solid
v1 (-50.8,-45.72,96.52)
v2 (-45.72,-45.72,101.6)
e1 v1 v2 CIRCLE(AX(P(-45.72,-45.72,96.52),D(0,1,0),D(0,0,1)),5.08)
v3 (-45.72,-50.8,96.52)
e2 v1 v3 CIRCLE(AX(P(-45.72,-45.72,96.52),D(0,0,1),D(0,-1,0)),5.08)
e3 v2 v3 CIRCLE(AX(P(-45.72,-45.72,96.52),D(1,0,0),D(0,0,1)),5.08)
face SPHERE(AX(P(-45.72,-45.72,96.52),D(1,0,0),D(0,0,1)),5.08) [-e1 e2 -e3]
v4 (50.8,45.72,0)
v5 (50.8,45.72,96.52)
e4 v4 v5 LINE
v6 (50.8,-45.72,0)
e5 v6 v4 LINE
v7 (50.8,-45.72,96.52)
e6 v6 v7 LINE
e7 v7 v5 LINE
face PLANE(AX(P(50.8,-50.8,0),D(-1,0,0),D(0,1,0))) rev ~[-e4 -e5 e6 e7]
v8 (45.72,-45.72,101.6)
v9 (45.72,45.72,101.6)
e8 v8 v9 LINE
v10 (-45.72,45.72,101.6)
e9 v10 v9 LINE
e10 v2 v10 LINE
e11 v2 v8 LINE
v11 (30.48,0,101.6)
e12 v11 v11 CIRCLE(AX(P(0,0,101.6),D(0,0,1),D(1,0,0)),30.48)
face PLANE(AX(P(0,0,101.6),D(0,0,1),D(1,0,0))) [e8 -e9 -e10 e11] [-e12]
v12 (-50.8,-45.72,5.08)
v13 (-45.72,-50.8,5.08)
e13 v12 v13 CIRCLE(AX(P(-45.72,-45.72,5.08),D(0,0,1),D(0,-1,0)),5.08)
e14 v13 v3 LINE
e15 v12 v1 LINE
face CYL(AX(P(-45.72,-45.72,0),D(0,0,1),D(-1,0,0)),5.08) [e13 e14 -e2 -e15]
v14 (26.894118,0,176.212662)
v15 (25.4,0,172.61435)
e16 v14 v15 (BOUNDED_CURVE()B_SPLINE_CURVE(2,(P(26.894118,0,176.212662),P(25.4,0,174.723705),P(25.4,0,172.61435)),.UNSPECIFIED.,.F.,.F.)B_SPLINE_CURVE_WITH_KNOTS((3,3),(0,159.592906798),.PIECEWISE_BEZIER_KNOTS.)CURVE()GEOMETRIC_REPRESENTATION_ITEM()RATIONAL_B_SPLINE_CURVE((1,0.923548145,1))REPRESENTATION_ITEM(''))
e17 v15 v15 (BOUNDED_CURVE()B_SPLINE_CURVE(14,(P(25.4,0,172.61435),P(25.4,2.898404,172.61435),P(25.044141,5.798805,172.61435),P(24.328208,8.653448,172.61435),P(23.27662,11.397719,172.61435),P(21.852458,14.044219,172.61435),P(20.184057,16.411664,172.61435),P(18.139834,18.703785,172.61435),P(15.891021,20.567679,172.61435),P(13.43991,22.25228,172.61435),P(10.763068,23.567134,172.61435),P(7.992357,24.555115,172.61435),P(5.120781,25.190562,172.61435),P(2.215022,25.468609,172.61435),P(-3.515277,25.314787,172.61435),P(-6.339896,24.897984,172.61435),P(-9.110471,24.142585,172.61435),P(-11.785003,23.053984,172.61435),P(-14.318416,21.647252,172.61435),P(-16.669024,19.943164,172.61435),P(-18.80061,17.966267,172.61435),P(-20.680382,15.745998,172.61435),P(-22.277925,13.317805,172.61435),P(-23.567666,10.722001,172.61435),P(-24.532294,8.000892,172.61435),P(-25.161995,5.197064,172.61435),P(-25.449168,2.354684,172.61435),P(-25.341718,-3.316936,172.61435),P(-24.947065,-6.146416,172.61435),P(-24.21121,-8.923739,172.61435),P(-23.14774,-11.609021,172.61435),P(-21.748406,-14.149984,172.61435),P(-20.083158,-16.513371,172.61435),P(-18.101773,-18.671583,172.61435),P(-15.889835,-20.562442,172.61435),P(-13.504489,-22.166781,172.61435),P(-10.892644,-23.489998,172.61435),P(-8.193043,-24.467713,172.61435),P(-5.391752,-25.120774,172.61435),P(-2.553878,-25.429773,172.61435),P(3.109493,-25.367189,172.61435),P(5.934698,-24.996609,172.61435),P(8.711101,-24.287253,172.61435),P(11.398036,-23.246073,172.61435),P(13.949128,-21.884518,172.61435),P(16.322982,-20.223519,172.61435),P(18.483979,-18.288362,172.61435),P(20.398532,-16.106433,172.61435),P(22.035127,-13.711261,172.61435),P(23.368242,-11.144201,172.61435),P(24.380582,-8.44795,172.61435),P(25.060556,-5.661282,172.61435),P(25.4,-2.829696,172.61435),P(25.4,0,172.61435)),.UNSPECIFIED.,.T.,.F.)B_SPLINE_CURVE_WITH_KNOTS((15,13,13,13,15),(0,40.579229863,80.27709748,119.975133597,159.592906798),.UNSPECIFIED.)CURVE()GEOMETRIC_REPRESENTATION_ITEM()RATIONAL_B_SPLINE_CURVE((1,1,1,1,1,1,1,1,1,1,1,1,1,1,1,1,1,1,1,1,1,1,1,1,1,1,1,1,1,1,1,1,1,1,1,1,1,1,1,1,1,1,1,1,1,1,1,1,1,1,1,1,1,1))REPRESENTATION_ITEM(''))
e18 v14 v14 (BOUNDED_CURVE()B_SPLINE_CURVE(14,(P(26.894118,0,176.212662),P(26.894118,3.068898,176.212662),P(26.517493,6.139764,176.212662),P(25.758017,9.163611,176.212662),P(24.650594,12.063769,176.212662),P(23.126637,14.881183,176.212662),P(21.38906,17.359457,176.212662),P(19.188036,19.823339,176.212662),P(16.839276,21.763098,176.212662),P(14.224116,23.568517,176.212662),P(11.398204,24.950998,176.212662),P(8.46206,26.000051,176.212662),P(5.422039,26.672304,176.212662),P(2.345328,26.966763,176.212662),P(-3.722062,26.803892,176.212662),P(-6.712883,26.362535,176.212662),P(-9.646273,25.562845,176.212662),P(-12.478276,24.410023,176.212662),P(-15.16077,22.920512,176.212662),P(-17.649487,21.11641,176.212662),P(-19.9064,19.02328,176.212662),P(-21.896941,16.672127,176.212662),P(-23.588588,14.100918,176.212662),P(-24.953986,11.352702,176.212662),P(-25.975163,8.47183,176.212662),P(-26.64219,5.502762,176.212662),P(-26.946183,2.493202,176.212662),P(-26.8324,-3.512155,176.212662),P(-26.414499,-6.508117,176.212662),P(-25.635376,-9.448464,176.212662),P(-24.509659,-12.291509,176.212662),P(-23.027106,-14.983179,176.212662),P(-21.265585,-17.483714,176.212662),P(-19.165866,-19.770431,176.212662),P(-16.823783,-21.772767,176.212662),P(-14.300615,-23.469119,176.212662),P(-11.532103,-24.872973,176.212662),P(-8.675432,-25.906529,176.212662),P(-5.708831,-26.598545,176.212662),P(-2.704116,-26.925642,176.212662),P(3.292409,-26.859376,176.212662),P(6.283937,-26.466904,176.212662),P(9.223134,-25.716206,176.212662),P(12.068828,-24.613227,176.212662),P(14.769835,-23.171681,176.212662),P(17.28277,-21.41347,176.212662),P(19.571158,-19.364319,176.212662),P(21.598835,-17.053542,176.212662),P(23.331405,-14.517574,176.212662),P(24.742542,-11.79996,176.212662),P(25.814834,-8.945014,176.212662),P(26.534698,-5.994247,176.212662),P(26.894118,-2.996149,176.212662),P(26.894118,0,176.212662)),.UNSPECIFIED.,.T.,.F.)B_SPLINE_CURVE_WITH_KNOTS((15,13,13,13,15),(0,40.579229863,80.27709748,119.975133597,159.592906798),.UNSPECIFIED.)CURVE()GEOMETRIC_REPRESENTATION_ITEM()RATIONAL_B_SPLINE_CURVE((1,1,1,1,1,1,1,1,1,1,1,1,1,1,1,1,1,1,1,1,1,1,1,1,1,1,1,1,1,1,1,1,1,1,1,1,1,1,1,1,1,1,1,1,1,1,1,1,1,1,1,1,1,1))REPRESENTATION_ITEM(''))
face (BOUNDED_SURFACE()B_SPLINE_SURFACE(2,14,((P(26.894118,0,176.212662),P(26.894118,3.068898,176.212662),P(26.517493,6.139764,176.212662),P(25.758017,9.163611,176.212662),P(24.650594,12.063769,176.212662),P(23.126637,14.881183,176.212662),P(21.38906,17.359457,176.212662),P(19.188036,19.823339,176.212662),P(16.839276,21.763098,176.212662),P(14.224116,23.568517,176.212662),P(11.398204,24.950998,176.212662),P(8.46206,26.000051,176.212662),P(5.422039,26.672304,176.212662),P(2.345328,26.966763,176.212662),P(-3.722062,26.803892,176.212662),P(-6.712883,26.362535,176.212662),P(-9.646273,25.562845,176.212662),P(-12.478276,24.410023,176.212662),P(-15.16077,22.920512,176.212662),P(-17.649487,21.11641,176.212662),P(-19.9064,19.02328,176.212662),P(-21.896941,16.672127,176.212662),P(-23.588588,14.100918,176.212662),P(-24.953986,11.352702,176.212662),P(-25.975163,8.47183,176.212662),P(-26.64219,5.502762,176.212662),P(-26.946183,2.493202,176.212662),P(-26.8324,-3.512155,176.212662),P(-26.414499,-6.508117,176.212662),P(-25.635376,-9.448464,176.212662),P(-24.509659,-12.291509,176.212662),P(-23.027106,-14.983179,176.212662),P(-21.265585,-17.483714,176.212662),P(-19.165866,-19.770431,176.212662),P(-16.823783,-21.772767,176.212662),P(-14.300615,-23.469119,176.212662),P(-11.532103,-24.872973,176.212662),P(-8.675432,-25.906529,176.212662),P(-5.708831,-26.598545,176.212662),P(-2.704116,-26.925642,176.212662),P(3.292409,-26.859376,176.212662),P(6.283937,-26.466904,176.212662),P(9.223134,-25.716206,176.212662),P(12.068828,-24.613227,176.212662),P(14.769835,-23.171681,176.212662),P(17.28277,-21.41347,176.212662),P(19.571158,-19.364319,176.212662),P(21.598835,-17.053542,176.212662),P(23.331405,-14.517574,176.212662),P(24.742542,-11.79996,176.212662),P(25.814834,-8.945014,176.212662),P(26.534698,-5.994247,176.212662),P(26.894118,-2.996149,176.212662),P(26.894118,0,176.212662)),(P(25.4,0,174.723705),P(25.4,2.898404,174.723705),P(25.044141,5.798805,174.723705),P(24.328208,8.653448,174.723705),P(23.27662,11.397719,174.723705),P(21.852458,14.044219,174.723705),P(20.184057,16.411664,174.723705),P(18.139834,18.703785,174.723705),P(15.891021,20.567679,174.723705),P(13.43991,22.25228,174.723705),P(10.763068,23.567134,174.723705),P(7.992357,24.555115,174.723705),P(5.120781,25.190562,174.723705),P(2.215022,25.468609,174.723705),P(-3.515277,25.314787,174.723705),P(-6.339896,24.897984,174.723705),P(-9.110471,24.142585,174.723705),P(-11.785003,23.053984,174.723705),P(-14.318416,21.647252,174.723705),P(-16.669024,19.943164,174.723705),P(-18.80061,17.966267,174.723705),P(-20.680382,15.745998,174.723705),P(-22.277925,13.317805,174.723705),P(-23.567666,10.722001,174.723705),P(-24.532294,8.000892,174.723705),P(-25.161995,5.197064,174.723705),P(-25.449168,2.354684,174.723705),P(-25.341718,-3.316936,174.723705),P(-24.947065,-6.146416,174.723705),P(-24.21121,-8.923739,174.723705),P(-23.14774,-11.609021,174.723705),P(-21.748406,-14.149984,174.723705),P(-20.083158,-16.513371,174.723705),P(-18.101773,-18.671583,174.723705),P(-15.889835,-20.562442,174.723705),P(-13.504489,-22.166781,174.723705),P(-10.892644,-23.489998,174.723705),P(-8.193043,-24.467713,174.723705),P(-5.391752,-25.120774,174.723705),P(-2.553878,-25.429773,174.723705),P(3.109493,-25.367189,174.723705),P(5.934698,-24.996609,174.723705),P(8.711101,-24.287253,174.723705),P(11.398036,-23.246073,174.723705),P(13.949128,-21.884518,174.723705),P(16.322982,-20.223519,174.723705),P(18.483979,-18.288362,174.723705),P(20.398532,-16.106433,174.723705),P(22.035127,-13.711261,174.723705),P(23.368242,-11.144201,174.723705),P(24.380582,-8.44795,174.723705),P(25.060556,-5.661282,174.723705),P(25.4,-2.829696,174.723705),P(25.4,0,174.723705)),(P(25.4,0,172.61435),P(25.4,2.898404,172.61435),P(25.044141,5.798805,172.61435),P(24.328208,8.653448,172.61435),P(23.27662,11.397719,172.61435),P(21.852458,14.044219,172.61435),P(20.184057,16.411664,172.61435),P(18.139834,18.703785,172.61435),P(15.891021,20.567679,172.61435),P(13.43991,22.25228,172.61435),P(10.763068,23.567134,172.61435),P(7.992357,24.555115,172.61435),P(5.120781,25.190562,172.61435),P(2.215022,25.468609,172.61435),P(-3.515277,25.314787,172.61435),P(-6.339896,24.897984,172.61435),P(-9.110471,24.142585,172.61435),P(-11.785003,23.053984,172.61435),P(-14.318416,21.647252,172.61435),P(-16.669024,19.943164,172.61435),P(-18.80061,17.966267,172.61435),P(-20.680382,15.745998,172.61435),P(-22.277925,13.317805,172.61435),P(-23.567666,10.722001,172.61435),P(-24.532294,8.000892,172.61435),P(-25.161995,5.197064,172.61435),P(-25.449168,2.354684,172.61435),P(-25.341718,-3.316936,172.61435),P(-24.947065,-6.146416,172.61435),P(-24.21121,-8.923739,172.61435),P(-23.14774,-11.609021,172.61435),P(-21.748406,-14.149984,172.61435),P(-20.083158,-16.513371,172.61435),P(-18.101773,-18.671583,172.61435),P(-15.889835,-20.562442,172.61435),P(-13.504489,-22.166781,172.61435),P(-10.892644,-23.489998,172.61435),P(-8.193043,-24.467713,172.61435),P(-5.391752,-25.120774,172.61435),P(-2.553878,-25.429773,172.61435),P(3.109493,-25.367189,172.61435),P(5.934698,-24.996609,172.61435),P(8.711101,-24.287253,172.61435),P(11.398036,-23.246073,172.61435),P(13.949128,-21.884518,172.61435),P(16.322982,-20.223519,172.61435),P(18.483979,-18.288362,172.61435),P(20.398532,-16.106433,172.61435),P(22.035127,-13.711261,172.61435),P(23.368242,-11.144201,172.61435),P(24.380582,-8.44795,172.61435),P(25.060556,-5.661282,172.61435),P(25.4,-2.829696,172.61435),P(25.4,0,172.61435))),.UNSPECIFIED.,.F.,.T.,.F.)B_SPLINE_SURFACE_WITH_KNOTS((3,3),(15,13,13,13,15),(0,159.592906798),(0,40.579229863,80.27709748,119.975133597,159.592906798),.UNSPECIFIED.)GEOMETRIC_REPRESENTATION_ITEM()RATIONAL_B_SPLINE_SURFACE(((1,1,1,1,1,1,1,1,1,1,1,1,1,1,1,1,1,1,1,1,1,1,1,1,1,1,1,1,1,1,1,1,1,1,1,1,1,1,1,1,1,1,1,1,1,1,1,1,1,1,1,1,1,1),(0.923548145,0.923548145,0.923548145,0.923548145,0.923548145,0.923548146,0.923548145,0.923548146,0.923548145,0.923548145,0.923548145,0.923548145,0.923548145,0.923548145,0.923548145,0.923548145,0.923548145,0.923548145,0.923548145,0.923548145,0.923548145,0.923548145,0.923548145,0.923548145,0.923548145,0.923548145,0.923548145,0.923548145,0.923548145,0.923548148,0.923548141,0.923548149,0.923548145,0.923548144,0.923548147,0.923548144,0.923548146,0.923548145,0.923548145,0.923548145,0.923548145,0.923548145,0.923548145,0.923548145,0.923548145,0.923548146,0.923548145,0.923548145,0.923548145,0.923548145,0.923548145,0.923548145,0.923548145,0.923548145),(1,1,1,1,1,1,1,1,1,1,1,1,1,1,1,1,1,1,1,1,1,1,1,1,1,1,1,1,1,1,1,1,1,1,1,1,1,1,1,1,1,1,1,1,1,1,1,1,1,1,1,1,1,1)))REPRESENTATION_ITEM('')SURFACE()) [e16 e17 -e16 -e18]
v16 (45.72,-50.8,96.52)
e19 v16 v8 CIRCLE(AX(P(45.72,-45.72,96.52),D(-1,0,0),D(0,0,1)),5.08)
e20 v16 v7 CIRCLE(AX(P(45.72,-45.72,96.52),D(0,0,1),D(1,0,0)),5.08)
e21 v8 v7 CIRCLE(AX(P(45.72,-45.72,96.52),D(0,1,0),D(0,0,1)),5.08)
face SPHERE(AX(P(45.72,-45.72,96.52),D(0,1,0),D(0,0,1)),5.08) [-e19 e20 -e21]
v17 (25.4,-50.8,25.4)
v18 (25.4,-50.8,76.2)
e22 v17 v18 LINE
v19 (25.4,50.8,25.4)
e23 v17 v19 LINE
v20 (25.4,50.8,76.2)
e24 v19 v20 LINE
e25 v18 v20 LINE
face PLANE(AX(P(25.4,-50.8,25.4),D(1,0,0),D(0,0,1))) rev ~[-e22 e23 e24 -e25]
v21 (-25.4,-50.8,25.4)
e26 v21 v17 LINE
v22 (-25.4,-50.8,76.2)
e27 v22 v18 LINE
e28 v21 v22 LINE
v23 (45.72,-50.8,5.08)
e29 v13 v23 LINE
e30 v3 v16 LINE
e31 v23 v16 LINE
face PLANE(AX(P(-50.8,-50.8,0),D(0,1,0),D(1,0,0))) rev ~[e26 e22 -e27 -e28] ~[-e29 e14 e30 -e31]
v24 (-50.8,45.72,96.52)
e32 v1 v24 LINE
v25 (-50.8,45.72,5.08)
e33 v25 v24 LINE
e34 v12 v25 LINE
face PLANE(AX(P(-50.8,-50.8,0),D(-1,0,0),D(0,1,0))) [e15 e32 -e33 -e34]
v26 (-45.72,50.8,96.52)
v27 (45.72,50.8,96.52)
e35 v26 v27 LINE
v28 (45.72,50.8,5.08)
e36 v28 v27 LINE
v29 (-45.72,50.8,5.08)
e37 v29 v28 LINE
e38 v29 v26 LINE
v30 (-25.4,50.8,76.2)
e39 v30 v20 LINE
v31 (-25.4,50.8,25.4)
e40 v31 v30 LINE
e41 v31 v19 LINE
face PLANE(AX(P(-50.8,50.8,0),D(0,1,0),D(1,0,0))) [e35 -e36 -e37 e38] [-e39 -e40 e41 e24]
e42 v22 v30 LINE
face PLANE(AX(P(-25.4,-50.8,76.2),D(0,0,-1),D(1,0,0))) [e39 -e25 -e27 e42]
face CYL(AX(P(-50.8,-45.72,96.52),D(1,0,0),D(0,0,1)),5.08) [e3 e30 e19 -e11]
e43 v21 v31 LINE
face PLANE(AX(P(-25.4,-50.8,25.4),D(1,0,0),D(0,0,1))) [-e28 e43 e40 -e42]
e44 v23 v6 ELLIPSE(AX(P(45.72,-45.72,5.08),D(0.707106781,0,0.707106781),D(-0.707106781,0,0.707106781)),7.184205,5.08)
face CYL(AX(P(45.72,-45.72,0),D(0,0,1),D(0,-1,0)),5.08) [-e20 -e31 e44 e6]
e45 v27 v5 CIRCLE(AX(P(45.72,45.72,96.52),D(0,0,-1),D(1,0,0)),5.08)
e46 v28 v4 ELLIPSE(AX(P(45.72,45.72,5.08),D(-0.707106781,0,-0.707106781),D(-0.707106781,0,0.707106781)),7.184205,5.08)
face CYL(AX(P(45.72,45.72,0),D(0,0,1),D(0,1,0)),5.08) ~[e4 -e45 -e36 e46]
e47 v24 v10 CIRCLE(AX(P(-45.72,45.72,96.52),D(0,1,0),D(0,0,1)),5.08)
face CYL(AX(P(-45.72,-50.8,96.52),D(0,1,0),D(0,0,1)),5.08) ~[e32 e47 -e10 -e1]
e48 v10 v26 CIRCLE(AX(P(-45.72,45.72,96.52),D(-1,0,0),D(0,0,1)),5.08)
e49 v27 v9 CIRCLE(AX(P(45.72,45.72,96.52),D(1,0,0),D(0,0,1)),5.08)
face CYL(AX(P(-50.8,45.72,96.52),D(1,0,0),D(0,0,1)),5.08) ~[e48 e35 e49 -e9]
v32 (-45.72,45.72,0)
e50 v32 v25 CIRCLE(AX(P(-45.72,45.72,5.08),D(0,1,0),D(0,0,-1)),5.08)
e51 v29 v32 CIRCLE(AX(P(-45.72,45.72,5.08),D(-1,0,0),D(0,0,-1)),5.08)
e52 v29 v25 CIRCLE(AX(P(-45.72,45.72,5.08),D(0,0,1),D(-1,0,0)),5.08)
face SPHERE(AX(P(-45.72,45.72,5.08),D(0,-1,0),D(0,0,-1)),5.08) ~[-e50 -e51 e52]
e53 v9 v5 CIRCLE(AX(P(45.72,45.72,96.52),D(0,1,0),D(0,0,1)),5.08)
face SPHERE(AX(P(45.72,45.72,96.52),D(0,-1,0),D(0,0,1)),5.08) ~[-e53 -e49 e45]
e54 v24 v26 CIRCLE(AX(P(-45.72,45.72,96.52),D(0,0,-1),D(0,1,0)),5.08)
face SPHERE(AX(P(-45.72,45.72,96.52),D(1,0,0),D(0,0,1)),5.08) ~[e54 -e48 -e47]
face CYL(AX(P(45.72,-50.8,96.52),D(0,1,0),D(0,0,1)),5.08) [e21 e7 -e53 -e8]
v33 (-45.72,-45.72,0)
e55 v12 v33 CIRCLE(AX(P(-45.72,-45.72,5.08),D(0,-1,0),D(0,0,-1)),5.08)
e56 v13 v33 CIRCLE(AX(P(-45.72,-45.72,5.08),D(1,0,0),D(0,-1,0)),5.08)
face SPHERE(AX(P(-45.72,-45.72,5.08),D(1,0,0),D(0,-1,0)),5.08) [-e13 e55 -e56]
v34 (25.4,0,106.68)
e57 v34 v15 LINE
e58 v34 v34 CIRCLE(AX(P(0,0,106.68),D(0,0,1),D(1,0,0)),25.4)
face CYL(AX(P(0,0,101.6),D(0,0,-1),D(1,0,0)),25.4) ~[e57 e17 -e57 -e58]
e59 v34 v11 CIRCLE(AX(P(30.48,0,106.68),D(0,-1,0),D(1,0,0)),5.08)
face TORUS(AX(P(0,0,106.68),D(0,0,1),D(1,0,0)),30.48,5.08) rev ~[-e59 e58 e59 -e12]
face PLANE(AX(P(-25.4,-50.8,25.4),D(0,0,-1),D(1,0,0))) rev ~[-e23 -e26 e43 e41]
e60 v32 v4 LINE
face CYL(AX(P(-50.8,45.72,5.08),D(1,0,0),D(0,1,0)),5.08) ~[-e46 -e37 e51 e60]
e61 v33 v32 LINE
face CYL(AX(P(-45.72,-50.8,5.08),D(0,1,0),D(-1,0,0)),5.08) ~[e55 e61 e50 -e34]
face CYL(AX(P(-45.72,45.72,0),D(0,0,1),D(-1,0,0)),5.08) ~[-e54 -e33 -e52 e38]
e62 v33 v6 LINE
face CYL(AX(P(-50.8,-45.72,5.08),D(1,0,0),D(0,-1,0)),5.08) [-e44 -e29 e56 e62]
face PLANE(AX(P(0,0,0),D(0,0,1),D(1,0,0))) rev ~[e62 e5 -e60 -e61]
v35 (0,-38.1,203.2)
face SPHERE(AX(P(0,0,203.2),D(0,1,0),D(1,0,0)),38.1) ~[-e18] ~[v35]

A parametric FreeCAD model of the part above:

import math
import FreeCAD as App
import Part
import Sketcher
from FreeCAD import Vector
Q = App.Units.Quantity


def edges_at(feature, points):
    """Names of the edges that pass closest to the given points."""
    edges = feature.Shape.Edges
    near = lambda p: min(range(len(edges)), key=lambda i: edges[i].distToShape(Part.Vertex(*p))[0])
    return sorted({f"Edge{near(p) + 1}" for p in points})

doc = App.newDocument("Part")
params = doc.addObject("Spreadsheet::Sheet", "Params")
for row, (alias, value) in enumerate([
    ("sketch1_width", "4 in"),
    ("pad1_length", "4 in"),
    ("sketch2_diameter", "2 in"),
    ("pad2_length", "4 in"),
    ("sketch3_radius", "1.5 in"),
    ("revolution_angle", "360 deg"),
    ("sketch4_width", "2 in"),
    ("pocket1_length", "4 in"),
    ("fillet_radius", "0.2 in"),
], start=1):
    params.set(f"A{row}", alias)
    params.set(f"B{row}", "=" + value)
    params.setAlias(f"B{row}", alias)

body = doc.addObject("PartDesign::Body", "Body")

sketch1 = doc.addObject("Sketcher::SketchObject", "Sketch")
body.addObject(sketch1)
sketch1.AttachmentSupport = (doc.XY_Plane, [""])
sketch1.MapMode = "FlatFace"
sketch1.addGeometry(Part.LineSegment(Vector(-50.8, 50.8, 0), Vector(-50.8, -50.8, 0)), False)
sketch1.addGeometry(Part.LineSegment(Vector(-50.8, -50.8, 0), Vector(50.8, -50.8, 0)), False)
sketch1.addGeometry(Part.LineSegment(Vector(50.8, -50.8, 0), Vector(50.8, 50.8, 0)), False)
sketch1.addGeometry(Part.LineSegment(Vector(50.8, 50.8, 0), Vector(-50.8, 50.8, 0)), False)
sketch1.addConstraint(Sketcher.Constraint("Coincident", 0, 2, 1, 1))
sketch1.addConstraint(Sketcher.Constraint("Coincident", 1, 2, 2, 1))
sketch1.addConstraint(Sketcher.Constraint("Coincident", 2, 2, 3, 1))
sketch1.addConstraint(Sketcher.Constraint("Coincident", 3, 2, 0, 1))
sketch1.addConstraint(Sketcher.Constraint("Vertical", 0))
sketch1.addConstraint(Sketcher.Constraint("Horizontal", 1))
sketch1.addConstraint(Sketcher.Constraint("Vertical", 2))
sketch1.addConstraint(Sketcher.Constraint("Horizontal", 3))
sketch1.addConstraint(Sketcher.Constraint("Symmetric", 0, 2, 2, 2, -1, 1))
sketch1.addConstraint(Sketcher.Constraint("Equal", 3, 0))
sketch1.addConstraint(Sketcher.Constraint("DistanceX", 1, 1, 1, 2, Q("4 in")))
sketch1.setExpression("Constraints[10]", "Params.sketch1_width")
pad1 = doc.addObject("PartDesign::Pad", "Pad")
body.addObject(pad1)
pad1.Profile = sketch1
pad1.setExpression("Length", "Params.pad1_length")

sketch2 = doc.addObject("Sketcher::SketchObject", "Sketch001")
body.addObject(sketch2)
sketch2.AttachmentSupport = (doc.XY_Plane, [""])
sketch2.MapMode = "FlatFace"
sketch2.AttachmentOffset = App.Placement(Vector(0, 0, 4 * 25.4), App.Rotation())
sketch2.addGeometry(Part.Circle(Vector(0, 0, 0), Vector(0, 0, 1), 25.4), False)
sketch2.addConstraint(Sketcher.Constraint("Coincident", 0, 3, -1, 1))
sketch2.addConstraint(Sketcher.Constraint("Diameter", 0, Q("2 in")))
sketch2.setExpression("Constraints[1]", "Params.sketch2_diameter")
pad2 = doc.addObject("PartDesign::Pad", "Pad001")
body.addObject(pad2)
pad2.Profile = sketch2
pad2.setExpression("Length", "Params.pad2_length")

sketch3 = doc.addObject("Sketcher::SketchObject", "Sketch002")
body.addObject(sketch3)
sketch3.AttachmentSupport = (doc.XY_Plane, [""])
sketch3.MapMode = "FlatFace"
sketch3.AttachmentOffset = App.Placement(Vector(0, 0, 8 * 25.4), App.Rotation())
sketch3.addGeometry(Part.ArcOfCircle(Part.Circle(Vector(0, 0, 0), Vector(0, 0, 1), 38.1), math.radians(-90), math.radians(90)), False)
sketch3.addGeometry(Part.LineSegment(Vector(0, 38.1, 0), Vector(0, -38.1, 0)), False)
sketch3.addConstraint(Sketcher.Constraint("Coincident", 0, 1, 1, 2))
sketch3.addConstraint(Sketcher.Constraint("Coincident", 1, 1, 0, 2))
sketch3.addConstraint(Sketcher.Constraint("Vertical", 1))
sketch3.addConstraint(Sketcher.Constraint("Coincident", 0, 3, -1, 1))
sketch3.addConstraint(Sketcher.Constraint("PointOnObject", 0, 1, -2))
sketch3.addConstraint(Sketcher.Constraint("Radius", 0, Q("1.5 in")))
sketch3.setExpression("Constraints[5]", "Params.sketch3_radius")
revolution = doc.addObject("PartDesign::Revolution", "Revolution")
body.addObject(revolution)
revolution.Profile = sketch3
revolution.ReferenceAxis = (sketch3, ["V_Axis"])
revolution.setExpression("Angle", "Params.revolution_angle")

sketch4 = doc.addObject("Sketcher::SketchObject", "Sketch003")
body.addObject(sketch4)
sketch4.AttachmentSupport = (doc.XZ_Plane, [""])
sketch4.MapMode = "FlatFace"
sketch4.AttachmentOffset = App.Placement(Vector(0, 0, 2 * 25.4), App.Rotation())
sketch4.addGeometry(Part.LineSegment(Vector(-25.4, 76.2, 0), Vector(-25.4, 25.4, 0)), False)
sketch4.addGeometry(Part.LineSegment(Vector(-25.4, 25.4, 0), Vector(25.4, 25.4, 0)), False)
sketch4.addGeometry(Part.LineSegment(Vector(25.4, 25.4, 0), Vector(25.4, 76.2, 0)), False)
sketch4.addGeometry(Part.LineSegment(Vector(25.4, 76.2, 0), Vector(-25.4, 76.2, 0)), False)
sketch4.addConstraint(Sketcher.Constraint("Coincident", 0, 2, 1, 1))
sketch4.addConstraint(Sketcher.Constraint("Coincident", 1, 2, 2, 1))
sketch4.addConstraint(Sketcher.Constraint("Coincident", 2, 2, 3, 1))
sketch4.addConstraint(Sketcher.Constraint("Coincident", 3, 2, 0, 1))
sketch4.addConstraint(Sketcher.Constraint("Vertical", 0))
sketch4.addConstraint(Sketcher.Constraint("Horizontal", 1))
sketch4.addConstraint(Sketcher.Constraint("Vertical", 2))
sketch4.addConstraint(Sketcher.Constraint("Horizontal", 3))
sketch4.addConstraint(Sketcher.Constraint("Equal", 3, 0))
sketch4.addConstraint(Sketcher.Constraint("DistanceX", 1, 1, 1, 2, Q("2 in")))
sketch4.addConstraint(Sketcher.Constraint("DistanceX", 0, 2, -1, 1, Q("1 in")))
sketch4.addConstraint(Sketcher.Constraint("DistanceY", -1, 1, 0, 2, Q("1 in")))
sketch4.setExpression("Constraints[9]", "Params.sketch4_width")
pocket1 = doc.addObject("PartDesign::Pocket", "Pocket")
body.addObject(pocket1)
pocket1.Profile = sketch4
pocket1.setExpression("Length", "Params.pocket1_length")
doc.recompute()

fillet = doc.addObject("PartDesign::Fillet", "Fillet")
body.addObject(fillet)
fillet.Base = (pocket1, edges_at(pocket1, [
    (50.8, 0, 101.6),
    (0, 50.8, 101.6),
    (0, -50.8, 101.6),
    (-50.8, 0, 101.6),
    (50.8, -50.8, 50.8),
    (50.8, 50.8, 50.8),
    (0, -50.8, 0),
    (-50.8, -50.8, 50.8),
    (-50.8, 0, 0),
    (0, 50.8, 0),
    (-50.8, 50.8, 50.8),
    (-25.4, 0, 101.6),
    (-25.4, 0, 174.802),
]))
fillet.setExpression("Radius", "Params.fillet_radius")

doc.recompute()
